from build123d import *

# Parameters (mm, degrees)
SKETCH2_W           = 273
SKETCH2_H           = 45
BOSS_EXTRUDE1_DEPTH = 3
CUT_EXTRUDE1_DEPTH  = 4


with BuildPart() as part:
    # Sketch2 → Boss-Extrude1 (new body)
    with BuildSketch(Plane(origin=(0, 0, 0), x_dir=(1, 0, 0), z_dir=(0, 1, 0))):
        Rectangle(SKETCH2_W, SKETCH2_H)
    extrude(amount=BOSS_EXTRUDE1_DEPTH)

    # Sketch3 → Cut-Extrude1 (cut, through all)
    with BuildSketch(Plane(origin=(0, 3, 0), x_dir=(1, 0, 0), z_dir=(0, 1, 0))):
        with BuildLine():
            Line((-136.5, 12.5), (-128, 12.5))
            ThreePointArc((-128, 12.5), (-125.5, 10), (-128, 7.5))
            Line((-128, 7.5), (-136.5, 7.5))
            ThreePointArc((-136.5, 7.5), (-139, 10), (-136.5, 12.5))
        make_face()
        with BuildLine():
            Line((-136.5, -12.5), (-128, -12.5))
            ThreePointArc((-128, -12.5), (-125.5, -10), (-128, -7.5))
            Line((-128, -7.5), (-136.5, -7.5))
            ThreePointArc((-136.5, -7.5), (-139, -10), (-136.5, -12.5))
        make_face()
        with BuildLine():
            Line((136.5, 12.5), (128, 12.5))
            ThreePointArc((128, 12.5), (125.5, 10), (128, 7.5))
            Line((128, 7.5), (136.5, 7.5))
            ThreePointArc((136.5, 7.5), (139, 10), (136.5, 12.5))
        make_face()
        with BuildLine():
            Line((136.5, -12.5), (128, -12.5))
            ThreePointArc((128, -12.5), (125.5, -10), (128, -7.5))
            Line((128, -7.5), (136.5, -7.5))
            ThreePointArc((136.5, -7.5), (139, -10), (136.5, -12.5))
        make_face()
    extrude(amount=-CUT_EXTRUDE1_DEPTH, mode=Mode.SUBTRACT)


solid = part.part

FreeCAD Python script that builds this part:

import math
import FreeCAD as App
import Part
import Sketcher


def add_polygon(sketch, points):
    """Adds a closed chain of lines whose ends are joined by coincident constraints."""
    first, n = sketch.GeometryCount, len(points)
    for a, b in zip(points, points[1:] + points[:1]):
        sketch.addGeometry(Part.LineSegment(App.Vector(*a, 0), App.Vector(*b, 0)), False)
    for i in range(n):
        sketch.addConstraint(Sketcher.Constraint("Coincident", first + i, 2, first + (i + 1) % n, 1))

doc = App.newDocument("Part")
body = doc.addObject("PartDesign::Body", "Body")

# Sketch on XZ plane
sketch1 = body.newObject("Sketcher::SketchObject", "Sketch")
sketch1.AttachmentSupport = (doc.getObject("XZ_Plane"), [""])
sketch1.MapMode = "FlatFace"
add_polygon(sketch1, [(-136, -22), (-136, 22), (136, 22), (136, -22)])  # lines 0-3
sketch1.addConstraint([
    Sketcher.Constraint("Vertical", 0),
    Sketcher.Constraint("Horizontal", 1),
    Sketcher.Constraint("Vertical", 2),
    Sketcher.Constraint("Horizontal", 3),
    Sketcher.Constraint("Symmetric", 0, 2, 2, 2, -1, 1),
    Sketcher.Constraint("DistanceX", 1, 1, 1, 2, 273.0),
    Sketcher.Constraint("DistanceY", 0, 1, 0, 2, 45.0),
])
pad1 = body.newObject("PartDesign::Pad", "Pad")
pad1.Profile = sketch1
pad1.Length = 3
pad1.Reversed = True

# Sketch on XZ plane
sketch2 = body.newObject("Sketcher::SketchObject", "Sketch001")
sketch2.AttachmentSupport = (doc.getObject("XZ_Plane"), [""])
sketch2.MapMode = "FlatFace"
sketch2.AttachmentOffset = App.Placement(App.Vector(0, 0, -3), App.Rotation())
sketch2.addGeometry([
    Part.LineSegment(App.Vector(-128, -12.5, 0), App.Vector(-136.5, -12.5, 0)),  # 0
    Part.ArcOfCircle(Part.Circle(App.Vector(-136.5, -10, 0), App.Vector(0, 0, 1), 2.5), math.radians(90), math.radians(270)),  # 1
    Part.LineSegment(App.Vector(-136.5, -7.5, 0), App.Vector(-128, -7.5, 0)),  # 2
    Part.ArcOfCircle(Part.Circle(App.Vector(-128, -10, 0), App.Vector(0, 0, 1), 2.5), math.radians(-90), math.radians(90)),  # 3
    Part.LineSegment(App.Vector(-136.5, 12.5, 0), App.Vector(-128, 12.5, 0)),  # 4
    Part.ArcOfCircle(Part.Circle(App.Vector(-128, 10, 0), App.Vector(0, 0, 1), 2.5), math.radians(-90), math.radians(90)),  # 5
    Part.LineSegment(App.Vector(-128, 7.5, 0), App.Vector(-136.5, 7.5, 0)),  # 6
    Part.ArcOfCircle(Part.Circle(App.Vector(-136.5, 10, 0), App.Vector(0, 0, 1), 2.5), math.radians(90), math.radians(270)),  # 7
    Part.LineSegment(App.Vector(136.5, -12.5, 0), App.Vector(128, -12.5, 0)),  # 8
    Part.ArcOfCircle(Part.Circle(App.Vector(128, -10, 0), App.Vector(0, 0, 1), 2.5), math.radians(90), math.radians(270)),  # 9
    Part.LineSegment(App.Vector(128, -7.5, 0), App.Vector(136.5, -7.5, 0)),  # 10
    Part.ArcOfCircle(Part.Circle(App.Vector(136.5, -10, 0), App.Vector(0, 0, 1), 2.5), math.radians(-90), math.radians(90)),  # 11
    Part.LineSegment(App.Vector(128, 12.5, 0), App.Vector(136.5, 12.5, 0)),  # 12
    Part.ArcOfCircle(Part.Circle(App.Vector(136.5, 10, 0), App.Vector(0, 0, 1), 2.5), math.radians(-90), math.radians(90)),  # 13
    Part.LineSegment(App.Vector(136.5, 7.5, 0), App.Vector(128, 7.5, 0)),  # 14
    Part.ArcOfCircle(Part.Circle(App.Vector(128, 10, 0), App.Vector(0, 0, 1), 2.5), math.radians(90), math.radians(270)),  # 15
], False)
sketch2.addConstraint([
    Sketcher.Constraint("Tangent", 0, 2, 1, 2),
    Sketcher.Constraint("Tangent", 1, 1, 2, 1),
    Sketcher.Constraint("Tangent", 2, 2, 3, 2),
    Sketcher.Constraint("Tangent", 3, 1, 0, 1),
    Sketcher.Constraint("Tangent", 4, 2, 5, 2),
    Sketcher.Constraint("Tangent", 5, 1, 6, 1),
    Sketcher.Constraint("Tangent", 6, 2, 7, 2),
    Sketcher.Constraint("Tangent", 7, 1, 4, 1),
    Sketcher.Constraint("Tangent", 8, 2, 9, 2),
    Sketcher.Constraint("Tangent", 9, 1, 10, 1),
    Sketcher.Constraint("Tangent", 10, 2, 11, 2),
    Sketcher.Constraint("Tangent", 11, 1, 8, 1),
    Sketcher.Constraint("Tangent", 12, 2, 13, 2),
    Sketcher.Constraint("Tangent", 13, 1, 14, 1),
    Sketcher.Constraint("Tangent", 14, 2, 15, 2),
    Sketcher.Constraint("Tangent", 15, 1, 12, 1),
    Sketcher.Constraint("Horizontal", 0),
    Sketcher.Constraint("Horizontal", 2),
    Sketcher.Constraint("Horizontal", 4),
    Sketcher.Constraint("Horizontal", 6),
    Sketcher.Constraint("Horizontal", 8),
    Sketcher.Constraint("Horizontal", 10),
    Sketcher.Constraint("Horizontal", 12),
    Sketcher.Constraint("Horizontal", 14),
    Sketcher.Constraint("Equal", 3, 5),
    Sketcher.Constraint("Equal", 7, 9),
    Sketcher.Constraint("Equal", 11, 13),
    Sketcher.Constraint("Symmetric", 5, 3, 9, 3, -1, 1),
    Sketcher.Constraint("Symmetric", 1, 3, 13, 3, -1, 1),
    Sketcher.Constraint("Symmetric", 3, 3, 9, 3, -2),
    Sketcher.Constraint("Vertical", 1, 3, 7, 3),
    Sketcher.Constraint("Vertical", 11, 3, 13, 3),
    Sketcher.Constraint("Vertical", 9, 3, 15, 3),
    Sketcher.Constraint("Radius", 1, 2.5),
    Sketcher.Constraint("DistanceX", 0, 2, 0, 1, 8.5),
    Sketcher.Constraint("DistanceY", 1, 3, -1, 1, 10.0),
    Sketcher.Constraint("DistanceX", 3, 3, -1, 1, 128.0),
])
pocket1 = body.newObject("PartDesign::Pocket", "Pocket")
pocket1.Profile = sketch2
pocket1.Type = "ThroughAll"
pocket1.Reversed = True

doc.recompute()
